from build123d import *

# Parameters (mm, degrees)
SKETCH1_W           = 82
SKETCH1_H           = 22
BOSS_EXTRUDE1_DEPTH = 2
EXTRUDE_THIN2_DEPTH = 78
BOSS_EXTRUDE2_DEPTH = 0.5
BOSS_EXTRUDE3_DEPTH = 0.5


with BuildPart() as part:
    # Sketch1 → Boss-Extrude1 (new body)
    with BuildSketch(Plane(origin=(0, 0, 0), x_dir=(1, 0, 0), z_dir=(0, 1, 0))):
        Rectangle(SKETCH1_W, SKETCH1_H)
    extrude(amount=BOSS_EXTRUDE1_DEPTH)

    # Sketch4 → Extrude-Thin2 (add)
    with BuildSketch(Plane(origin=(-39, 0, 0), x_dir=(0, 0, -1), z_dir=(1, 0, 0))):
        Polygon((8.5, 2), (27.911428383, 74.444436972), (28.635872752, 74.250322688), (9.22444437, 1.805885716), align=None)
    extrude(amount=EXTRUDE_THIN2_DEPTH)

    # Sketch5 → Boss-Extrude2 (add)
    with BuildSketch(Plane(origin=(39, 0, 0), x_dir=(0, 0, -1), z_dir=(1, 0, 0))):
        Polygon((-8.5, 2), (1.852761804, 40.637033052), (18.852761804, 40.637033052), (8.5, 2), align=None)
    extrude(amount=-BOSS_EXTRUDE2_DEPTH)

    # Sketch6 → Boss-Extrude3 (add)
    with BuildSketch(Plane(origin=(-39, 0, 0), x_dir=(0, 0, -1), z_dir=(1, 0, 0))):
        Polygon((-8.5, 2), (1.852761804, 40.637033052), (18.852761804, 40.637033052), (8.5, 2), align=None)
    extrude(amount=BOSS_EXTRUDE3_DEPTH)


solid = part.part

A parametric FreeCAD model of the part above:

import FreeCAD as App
import Part
import Sketcher
Q = App.Units.Quantity


def add_polygon(sketch, points):
    """Adds a closed chain of lines whose ends are joined by coincident constraints."""
    first, n = sketch.GeometryCount, len(points)
    for a, b in zip(points, points[1:] + points[:1]):
        sketch.addGeometry(Part.LineSegment(App.Vector(*a, 0), App.Vector(*b, 0)), False)
    for i in range(n):
        sketch.addConstraint(Sketcher.Constraint("Coincident", first + i, 2, first + (i + 1) % n, 1))

doc = App.newDocument("Part")
body = doc.addObject("PartDesign::Body", "Body")

# Sketch on XZ plane
sketch1 = doc.addObject("Sketcher::SketchObject", "Sketch")
body.addObject(sketch1)
sketch1.AttachmentSupport = (doc.XZ_Plane, [""])
sketch1.MapMode = "FlatFace"
add_polygon(sketch1, [(-41, -11), (-41, 11), (41, 11), (41, -11)])  # lines 0-3
sketch1.addConstraint(Sketcher.Constraint("Vertical", 0))
sketch1.addConstraint(Sketcher.Constraint("Horizontal", 1))
sketch1.addConstraint(Sketcher.Constraint("Vertical", 2))
sketch1.addConstraint(Sketcher.Constraint("Horizontal", 3))
sketch1.addConstraint(Sketcher.Constraint("Symmetric", 0, 2, 2, 2, -1, 1))
sketch1.addConstraint(Sketcher.Constraint("DistanceX", 1, 1, 1, 2, Q("82 mm")))
sketch1.addConstraint(Sketcher.Constraint("DistanceY", 0, 1, 0, 2, Q("22 mm")))
pad1 = doc.addObject("PartDesign::Pad", "Pad")
body.addObject(pad1)
pad1.Profile = sketch1
pad1.Length = 2
pad1.Reversed = True

# Sketch on YZ plane
sketch2 = doc.addObject("Sketcher::SketchObject", "Sketch001")
body.addObject(sketch2)
sketch2.AttachmentSupport = (doc.YZ_Plane, [""])
sketch2.MapMode = "FlatFace"
sketch2.AttachmentOffset = App.Placement(App.Vector(0, 0, -39), App.Rotation())
add_polygon(sketch2, [(74.4, -27.9), (2, -8.5), (1.8, -9.2), (74.3, -28.6)])  # lines 0-3
sketch2.addConstraint(Sketcher.Constraint("Perpendicular", 0, 1))
sketch2.addConstraint(Sketcher.Constraint("Perpendicular", 1, 2))
sketch2.addConstraint(Sketcher.Constraint("Perpendicular", 2, 3))
sketch2.addConstraint(Sketcher.Constraint("Angle", 0, Q("165 deg")))
sketch2.addConstraint(Sketcher.Constraint("Distance", 0, Q("75 mm")))
sketch2.addConstraint(Sketcher.Constraint("DistanceX", -1, 1, 0, 2, Q("2 mm")))
sketch2.addConstraint(Sketcher.Constraint("DistanceY", 0, 2, -1, 1, Q("8.5 mm")))
sketch2.addConstraint(Sketcher.Constraint("Distance", 1, Q("0.75 mm")))
pad2 = doc.addObject("PartDesign::Pad", "Pad001")
body.addObject(pad2)
pad2.Profile = sketch2
pad2.Length = 78

# Sketch on YZ plane
sketch3 = doc.addObject("Sketcher::SketchObject", "Sketch002")
body.addObject(sketch3)
sketch3.AttachmentSupport = (doc.YZ_Plane, [""])
sketch3.MapMode = "FlatFace"
sketch3.AttachmentOffset = App.Placement(App.Vector(0, 0, 39), App.Rotation())
add_polygon(sketch3, [(41, -2), (2, 8), (2, -8), (41, -19)])  # lines 0-3
sketch3.addConstraint(Sketcher.Constraint("Vertical", 1))
sketch3.addConstraint(Sketcher.Constraint("Vertical", 3))
sketch3.addConstraint(Sketcher.Constraint("Parallel", 0, 2))
sketch3.addConstraint(Sketcher.Constraint("DistanceY", 1, 2, 1, 1, Q("17 mm")))
sketch3.addConstraint(Sketcher.Constraint("Angle", 0, Q("165 deg")))
sketch3.addConstraint(Sketcher.Constraint("Distance", 0, Q("40 mm")))
sketch3.addConstraint(Sketcher.Constraint("DistanceX", -1, 1, 0, 2, Q("2 mm")))
sketch3.addConstraint(Sketcher.Constraint("DistanceY", -1, 1, 0, 2, Q("8.5 mm")))
pad3 = doc.addObject("PartDesign::Pad", "Pad002")
body.addObject(pad3)
pad3.Profile = sketch3
pad3.Length = 0.5
pad3.Reversed = True

# Sketch on YZ plane
sketch4 = doc.addObject("Sketcher::SketchObject", "Sketch003")
body.addObject(sketch4)
sketch4.AttachmentSupport = (doc.YZ_Plane, [""])
sketch4.MapMode = "FlatFace"
sketch4.AttachmentOffset = App.Placement(App.Vector(0, 0, -39), App.Rotation())
add_polygon(sketch4, [(41, -2), (2, 8), (2, -8), (41, -19)])  # lines 0-3
sketch4.addConstraint(Sketcher.Constraint("Vertical", 1))
sketch4.addConstraint(Sketcher.Constraint("Vertical", 3))
sketch4.addConstraint(Sketcher.Constraint("Parallel", 0, 2))
sketch4.addConstraint(Sketcher.Constraint("DistanceY", 1, 2, 1, 1, Q("17 mm")))
sketch4.addConstraint(Sketcher.Constraint("Angle", 0, Q("165 deg")))
sketch4.addConstraint(Sketcher.Constraint("Distance", 0, Q("40 mm")))
sketch4.addConstraint(Sketcher.Constraint("DistanceX", -1, 1, 0, 2, Q("2 mm")))
sketch4.addConstraint(Sketcher.Constraint("DistanceY", -1, 1, 0, 2, Q("8.5 mm")))
pad4 = doc.addObject("PartDesign::Pad", "Pad003")
body.addObject(pad4)
pad4.Profile = sketch4
pad4.Length = 0.5

doc.recompute()
